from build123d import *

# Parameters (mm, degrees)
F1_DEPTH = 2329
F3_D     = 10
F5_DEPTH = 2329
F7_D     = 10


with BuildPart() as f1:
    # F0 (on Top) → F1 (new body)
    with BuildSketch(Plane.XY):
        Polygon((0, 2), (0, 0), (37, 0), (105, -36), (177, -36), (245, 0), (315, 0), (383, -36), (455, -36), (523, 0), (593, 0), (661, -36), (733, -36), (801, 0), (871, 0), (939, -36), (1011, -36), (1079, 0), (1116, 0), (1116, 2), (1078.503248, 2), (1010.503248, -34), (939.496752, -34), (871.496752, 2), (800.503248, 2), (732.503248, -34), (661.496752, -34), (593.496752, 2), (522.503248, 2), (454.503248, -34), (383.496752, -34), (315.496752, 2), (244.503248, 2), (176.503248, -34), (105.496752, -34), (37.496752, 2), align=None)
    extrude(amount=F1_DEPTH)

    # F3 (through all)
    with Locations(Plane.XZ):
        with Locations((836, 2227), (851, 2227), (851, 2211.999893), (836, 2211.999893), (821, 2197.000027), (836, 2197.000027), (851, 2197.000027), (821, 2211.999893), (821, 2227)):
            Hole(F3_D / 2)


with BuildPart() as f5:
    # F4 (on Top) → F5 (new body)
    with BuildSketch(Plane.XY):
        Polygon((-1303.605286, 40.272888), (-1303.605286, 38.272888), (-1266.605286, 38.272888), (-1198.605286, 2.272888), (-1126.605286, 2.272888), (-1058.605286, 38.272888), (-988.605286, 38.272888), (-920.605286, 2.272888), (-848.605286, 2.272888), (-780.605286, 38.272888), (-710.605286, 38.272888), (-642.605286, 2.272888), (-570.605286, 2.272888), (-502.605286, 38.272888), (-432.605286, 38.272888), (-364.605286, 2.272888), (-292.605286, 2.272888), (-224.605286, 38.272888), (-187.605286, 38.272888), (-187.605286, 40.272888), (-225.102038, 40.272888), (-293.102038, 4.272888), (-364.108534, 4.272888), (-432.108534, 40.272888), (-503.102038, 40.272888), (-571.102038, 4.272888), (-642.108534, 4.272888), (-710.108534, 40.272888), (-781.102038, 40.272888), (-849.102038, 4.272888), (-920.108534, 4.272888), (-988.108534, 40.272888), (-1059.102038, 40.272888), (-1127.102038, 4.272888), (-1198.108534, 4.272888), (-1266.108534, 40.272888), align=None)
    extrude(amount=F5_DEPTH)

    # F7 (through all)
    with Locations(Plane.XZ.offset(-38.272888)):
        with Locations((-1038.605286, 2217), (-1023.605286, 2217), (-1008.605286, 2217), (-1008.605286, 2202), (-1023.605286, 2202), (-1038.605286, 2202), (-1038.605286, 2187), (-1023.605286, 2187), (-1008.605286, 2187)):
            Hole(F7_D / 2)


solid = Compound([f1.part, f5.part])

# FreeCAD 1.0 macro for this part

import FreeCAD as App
import Part
import Sketcher


def add_polygon(sketch, points):
    """Adds a closed chain of lines whose ends are joined by coincident constraints."""
    first, n = sketch.GeometryCount, len(points)
    for a, b in zip(points, points[1:] + points[:1]):
        sketch.addGeometry(Part.LineSegment(App.Vector(*a, 0), App.Vector(*b, 0)), False)
    for i in range(n):
        sketch.addConstraint(Sketcher.Constraint("Coincident", first + i, 2, first + (i + 1) % n, 1))

doc = App.newDocument("Part")
body = doc.addObject("PartDesign::Body", "Body")

sketch1 = body.newObject("Sketcher::SketchObject", "Sketch")
sketch1.AttachmentSupport = (doc.getObject("XY_Plane"), [""])
sketch1.MapMode = "FlatFace"
add_polygon(sketch1, [(0, 2), (0, 0), (37, 0), (105, -36), (177, -36), (245, 0), (315, 0), (383, -36), (455, -36), (523, 0), (593, 0), (661, -36), (733, -36), (801, 0), (871, 0), (939, -36), (1011, -36), (1079, 0), (1116, 0), (1116, 2), (1078.503248, 2), (1010.503248, -34), (939.496752, -34), (871.496752, 2), (800.503248, 2), (732.503248, -34), (661.496752, -34), (593.496752, 2), (522.503248, 2), (454.503248, -34), (383.496752, -34), (315.496752, 2), (244.503248, 2), (176.503248, -34), (105.496752, -34), (37.496752, 2)])
sketch1.addConstraint([
    Sketcher.Constraint("Vertical", 0),
    Sketcher.Constraint("Horizontal", 1),
    Sketcher.Constraint("Horizontal", 3),
    Sketcher.Constraint("Horizontal", 5),
    Sketcher.Constraint("Horizontal", 7),
    Sketcher.Constraint("Horizontal", 9),
    Sketcher.Constraint("Horizontal", 11),
    Sketcher.Constraint("Horizontal", 13),
    Sketcher.Constraint("Horizontal", 15),
    Sketcher.Constraint("Horizontal", 17),
    Sketcher.Constraint("Vertical", 18),
    Sketcher.Constraint("Horizontal", 19),
    Sketcher.Constraint("Horizontal", 21),
    Sketcher.Constraint("Horizontal", 23),
    Sketcher.Constraint("Horizontal", 25),
    Sketcher.Constraint("Horizontal", 27),
    Sketcher.Constraint("Horizontal", 29),
    Sketcher.Constraint("Horizontal", 31),
    Sketcher.Constraint("Horizontal", 33),
    Sketcher.Constraint("Horizontal", 35),
    Sketcher.Constraint("Coincident", 0, 2, -1, 1),
    Sketcher.Constraint("PointOnObject", 4, 2, -1),
    Sketcher.Constraint("PointOnObject", 8, 2, -1),
    Sketcher.Constraint("PointOnObject", 12, 2, -1),
    Sketcher.Constraint("PointOnObject", 16, 2, -1),
    Sketcher.Constraint("Parallel", 2, 6),
    Sketcher.Constraint("Parallel", 4, 8),
    Sketcher.Constraint("Parallel", 6, 10),
    Sketcher.Constraint("Parallel", 8, 12),
    Sketcher.Constraint("Parallel", 10, 14),
    Sketcher.Constraint("Parallel", 12, 16),
    Sketcher.Constraint("Parallel", 16, 20),
    Sketcher.Constraint("Parallel", 14, 22),
    Sketcher.Constraint("Parallel", 20, 24),
    Sketcher.Constraint("Parallel", 22, 26),
    Sketcher.Constraint("Parallel", 24, 28),
    Sketcher.Constraint("Parallel", 26, 30),
    Sketcher.Constraint("Parallel", 28, 32),
    Sketcher.Constraint("Parallel", 30, 34),
    Sketcher.Constraint("Horizontal", 3, 2, 6, 2),
    Sketcher.Constraint("Horizontal", 7, 2, 10, 2),
    Sketcher.Constraint("Horizontal", 11, 2, 14, 2),
    Sketcher.Constraint("Horizontal", 19, 2, 22, 2),
    Sketcher.Constraint("Horizontal", 21, 2, 24, 2),
    Sketcher.Constraint("Horizontal", 23, 2, 26, 2),
    Sketcher.Constraint("Horizontal", 25, 2, 28, 2),
    Sketcher.Constraint("Horizontal", 27, 2, 30, 2),
    Sketcher.Constraint("Horizontal", 29, 2, 32, 2),
    Sketcher.Constraint("Horizontal", 31, 2, 34, 2),
    Sketcher.Constraint("Equal", 3, 7),
    Sketcher.Constraint("Equal", 5, 9),
    Sketcher.Constraint("Equal", 7, 11),
    Sketcher.Constraint("Equal", 9, 13),
    Sketcher.Constraint("Equal", 11, 15),
    Sketcher.Constraint("Equal", 1, 17),
    Sketcher.Constraint("Equal", 21, 25),
    Sketcher.Constraint("Equal", 23, 27),
    Sketcher.Constraint("Equal", 25, 29),
    Sketcher.Constraint("Equal", 27, 31),
    Sketcher.Constraint("Equal", 29, 33),
    Sketcher.Constraint("Equal", 19, 35),
    Sketcher.Constraint("Equal", 2, 4),
    Sketcher.Constraint("Equal", 16, 20),
    Sketcher.Constraint("DistanceX", 1, 1, 1, 2, 37.0),
    Sketcher.Constraint("DistanceX", 3, 1, 3, 2, 72.0),
    Sketcher.Constraint("DistanceX", 5, 1, 5, 2, 70.0),
    Sketcher.Constraint("DistanceY", 0, 2, 0, 1, 2.0),
    Sketcher.Constraint("DistanceX", -1, 1, 2, 2, 105.0),
    Sketcher.Constraint("DistanceY", 2, 2, -1, 1, 36.0),
    Sketcher.Constraint("DistanceX", 19, 2, 19, 1, 37.496752),
    Sketcher.Constraint("DistanceX", 21, 2, 21, 1, 71.006496),
])
pad1 = body.newObject("PartDesign::Pad", "Pad")
pad1.Profile = sketch1
pad1.Length = 2329

sketch2 = body.newObject("Sketcher::SketchObject", "Sketch001")
sketch2.AttachmentSupport = (doc.getObject("XZ_Plane"), [""])
sketch2.MapMode = "FlatFace"
sketch2.addGeometry([
    Part.Circle(App.Vector(836, 2227, 0), App.Vector(0, 0, 1), 5),
    Part.Circle(App.Vector(851, 2227, 0), App.Vector(0, 0, 1), 5),
    Part.Circle(App.Vector(851, 2211.999893, 0), App.Vector(0, 0, 1), 5),
    Part.Circle(App.Vector(836, 2211.999893, 0), App.Vector(0, 0, 1), 5),
    Part.Circle(App.Vector(821, 2197.000027, 0), App.Vector(0, 0, 1), 5),
    Part.Circle(App.Vector(836, 2197.000027, 0), App.Vector(0, 0, 1), 5),
    Part.Circle(App.Vector(851, 2197.000027, 0), App.Vector(0, 0, 1), 5),
    Part.Circle(App.Vector(821, 2211.999893, 0), App.Vector(0, 0, 1), 5),
    Part.Circle(App.Vector(821, 2227, 0), App.Vector(0, 0, 1), 5),
], False)
sketch2.addConstraint([
    Sketcher.Constraint("Equal", 0, 1),
    Sketcher.Constraint("Equal", 1, 2),
    Sketcher.Constraint("Equal", 2, 3),
    Sketcher.Constraint("Equal", 3, 4),
    Sketcher.Constraint("Equal", 4, 5),
    Sketcher.Constraint("Equal", 5, 6),
    Sketcher.Constraint("Equal", 6, 7),
    Sketcher.Constraint("Equal", 7, 8),
    Sketcher.Constraint("Horizontal", 0, 3, 1, 3),
    Sketcher.Constraint("Horizontal", 2, 3, 3, 3),
    Sketcher.Constraint("Horizontal", 4, 3, 5, 3),
    Sketcher.Constraint("Horizontal", 5, 3, 6, 3),
    Sketcher.Constraint("Horizontal", 3, 3, 7, 3),
    Sketcher.Constraint("Horizontal", 1, 3, 8, 3),
    Sketcher.Constraint("Vertical", 1, 3, 2, 3),
    Sketcher.Constraint("Vertical", 0, 3, 3, 3),
    Sketcher.Constraint("Vertical", 3, 3, 5, 3),
    Sketcher.Constraint("Vertical", 2, 3, 6, 3),
    Sketcher.Constraint("Vertical", 4, 3, 7, 3),
    Sketcher.Constraint("Vertical", 7, 3, 8, 3),
    Sketcher.Constraint("Diameter", 0, 10.0),
    Sketcher.Constraint("DistanceX", -1, 1, 0, 3, 836.0),
    Sketcher.Constraint("DistanceY", -1, 1, 0, 3, 2227.0),
    Sketcher.Constraint("DistanceX", -1, 1, 1, 3, 851.0),
    Sketcher.Constraint("DistanceX", -1, 1, 4, 3, 821.0),
    Sketcher.Constraint("DistanceY", -1, 1, 2, 3, 2211.999893),
    Sketcher.Constraint("DistanceY", -1, 1, 4, 3, 2197.000027),
])
doc.recompute()
hole = body.newObject("PartDesign::Hole", "Hole")
hole.Profile = sketch2
hole.ThreadType = "None"
hole.Diameter = 10
hole.DepthType = "ThroughAll"
body2 = doc.addObject("PartDesign::Body", "Body001")

sketch3 = body2.newObject("Sketcher::SketchObject", "Sketch002")
sketch3.AttachmentSupport = (doc.getObject("XY_Plane001"), [""])
sketch3.MapMode = "FlatFace"
add_polygon(sketch3, [(-1303.605286, 40.272888), (-1303.605286, 38.272888), (-1266.605286, 38.272888), (-1198.605286, 2.272888), (-1126.605286, 2.272888), (-1058.605286, 38.272888), (-988.605286, 38.272888), (-920.605286, 2.272888), (-848.605286, 2.272888), (-780.605286, 38.272888), (-710.605286, 38.272888), (-642.605286, 2.272888), (-570.605286, 2.272888), (-502.605286, 38.272888), (-432.605286, 38.272888), (-364.605286, 2.272888), (-292.605286, 2.272888), (-224.605286, 38.272888), (-187.605286, 38.272888), (-187.605286, 40.272888), (-225.102038, 40.272888), (-293.102038, 4.272888), (-364.108534, 4.272888), (-432.108534, 40.272888), (-503.102038, 40.272888), (-571.102038, 4.272888), (-642.108534, 4.272888), (-710.108534, 40.272888), (-781.102038, 40.272888), (-849.102038, 4.272888), (-920.108534, 4.272888), (-988.108534, 40.272888), (-1059.102038, 40.272888), (-1127.102038, 4.272888), (-1198.108534, 4.272888), (-1266.108534, 40.272888)])
sketch3.addConstraint([
    Sketcher.Constraint("Vertical", 0),
    Sketcher.Constraint("Horizontal", 1),
    Sketcher.Constraint("Horizontal", 3),
    Sketcher.Constraint("Horizontal", 5),
    Sketcher.Constraint("Horizontal", 7),
    Sketcher.Constraint("Horizontal", 9),
    Sketcher.Constraint("Horizontal", 11),
    Sketcher.Constraint("Horizontal", 13),
    Sketcher.Constraint("Horizontal", 15),
    Sketcher.Constraint("Horizontal", 17),
    Sketcher.Constraint("Vertical", 18),
    Sketcher.Constraint("Horizontal", 19),
    Sketcher.Constraint("Horizontal", 21),
    Sketcher.Constraint("Horizontal", 23),
    Sketcher.Constraint("Horizontal", 25),
    Sketcher.Constraint("Horizontal", 27),
    Sketcher.Constraint("Horizontal", 29),
    Sketcher.Constraint("Horizontal", 31),
    Sketcher.Constraint("Horizontal", 33),
    Sketcher.Constraint("Horizontal", 35),
    Sketcher.Constraint("Parallel", 2, 6),
    Sketcher.Constraint("Parallel", 4, 8),
    Sketcher.Constraint("Parallel", 6, 10),
    Sketcher.Constraint("Parallel", 8, 12),
    Sketcher.Constraint("Parallel", 10, 14),
    Sketcher.Constraint("Parallel", 12, 16),
    Sketcher.Constraint("Parallel", 16, 20),
    Sketcher.Constraint("Parallel", 14, 22),
    Sketcher.Constraint("Parallel", 20, 24),
    Sketcher.Constraint("Parallel", 22, 26),
    Sketcher.Constraint("Parallel", 24, 28),
    Sketcher.Constraint("Parallel", 26, 30),
    Sketcher.Constraint("Parallel", 28, 32),
    Sketcher.Constraint("Parallel", 30, 34),
    Sketcher.Constraint("Horizontal", 1, 2, 4, 2),
    Sketcher.Constraint("Horizontal", 3, 2, 6, 2),
    Sketcher.Constraint("Horizontal", 5, 2, 8, 2),
    Sketcher.Constraint("Horizontal", 7, 2, 10, 2),
    Sketcher.Constraint("Horizontal", 9, 2, 12, 2),
    Sketcher.Constraint("Horizontal", 11, 2, 14, 2),
    Sketcher.Constraint("Horizontal", 13, 2, 16, 2),
    Sketcher.Constraint("Horizontal", 19, 2, 22, 2),
    Sketcher.Constraint("Horizontal", 21, 2, 24, 2),
    Sketcher.Constraint("Horizontal", 23, 2, 26, 2),
    Sketcher.Constraint("Horizontal", 25, 2, 28, 2),
    Sketcher.Constraint("Horizontal", 27, 2, 30, 2),
    Sketcher.Constraint("Horizontal", 29, 2, 32, 2),
    Sketcher.Constraint("Horizontal", 31, 2, 34, 2),
    Sketcher.Constraint("Equal", 3, 7),
    Sketcher.Constraint("Equal", 5, 9),
    Sketcher.Constraint("Equal", 7, 11),
    Sketcher.Constraint("Equal", 9, 13),
    Sketcher.Constraint("Equal", 11, 15),
    Sketcher.Constraint("Equal", 1, 17),
    Sketcher.Constraint("Equal", 21, 25),
    Sketcher.Constraint("Equal", 23, 27),
    Sketcher.Constraint("Equal", 25, 29),
    Sketcher.Constraint("Equal", 27, 31),
    Sketcher.Constraint("Equal", 29, 33),
    Sketcher.Constraint("Equal", 19, 35),
    Sketcher.Constraint("Equal", 2, 4),
    Sketcher.Constraint("Equal", 16, 20),
    Sketcher.Constraint("DistanceX", 1, 1, 1, 2, 37.0),
    Sketcher.Constraint("DistanceX", 3, 1, 3, 2, 72.0),
    Sketcher.Constraint("DistanceX", 5, 1, 5, 2, 70.0),
    Sketcher.Constraint("DistanceY", 0, 2, 0, 1, 2.0),
    Sketcher.Constraint("DistanceX", 1, 2, 2, 2, 68.0),
    Sketcher.Constraint("DistanceY", 2, 2, 1, 2, 36.0),
    Sketcher.Constraint("DistanceX", 19, 2, 19, 1, 37.496752),
    Sketcher.Constraint("DistanceX", 21, 2, 21, 1, 71.006496),
    Sketcher.Constraint("DistanceY", -1, 1, 0, 2, 38.272888),
    Sketcher.Constraint("DistanceX", 19, 2, -1, 1, 225.102038),
])
pad2 = body2.newObject("PartDesign::Pad", "Pad001")
pad2.Profile = sketch3
pad2.Length = 2329

sketch4 = body2.newObject("Sketcher::SketchObject", "Sketch003")
sketch4.AttachmentSupport = (doc.getObject("XZ_Plane001"), [""])
sketch4.MapMode = "FlatFace"
sketch4.AttachmentOffset = App.Placement(App.Vector(0, 0, -38.272888), App.Rotation())
sketch4.addGeometry([
    Part.Circle(App.Vector(-1038.605286, 2217, 0), App.Vector(0, 0, 1), 5),
    Part.Circle(App.Vector(-1023.605286, 2217, 0), App.Vector(0, 0, 1), 5),
    Part.Circle(App.Vector(-1008.605286, 2217, 0), App.Vector(0, 0, 1), 5),
    Part.Circle(App.Vector(-1008.605286, 2202, 0), App.Vector(0, 0, 1), 5),
    Part.Circle(App.Vector(-1023.605286, 2202, 0), App.Vector(0, 0, 1), 5),
    Part.Circle(App.Vector(-1038.605286, 2202, 0), App.Vector(0, 0, 1), 5),
    Part.Circle(App.Vector(-1038.605286, 2187, 0), App.Vector(0, 0, 1), 5),
    Part.Circle(App.Vector(-1023.605286, 2187, 0), App.Vector(0, 0, 1), 5),
    Part.Circle(App.Vector(-1008.605286, 2187, 0), App.Vector(0, 0, 1), 5),
], False)
sketch4.addConstraint([
    Sketcher.Constraint("Equal", 0, 1),
    Sketcher.Constraint("Equal", 1, 2),
    Sketcher.Constraint("Equal", 2, 3),
    Sketcher.Constraint("Equal", 3, 4),
    Sketcher.Constraint("Equal", 4, 5),
    Sketcher.Constraint("Equal", 5, 6),
    Sketcher.Constraint("Equal", 6, 7),
    Sketcher.Constraint("Equal", 7, 8),
    Sketcher.Constraint("Horizontal", 0, 3, 1, 3),
    Sketcher.Constraint("Horizontal", 1, 3, 2, 3),
    Sketcher.Constraint("Horizontal", 3, 3, 4, 3),
    Sketcher.Constraint("Horizontal", 4, 3, 5, 3),
    Sketcher.Constraint("Horizontal", 6, 3, 7, 3),
    Sketcher.Constraint("Horizontal", 7, 3, 8, 3),
    Sketcher.Constraint("Vertical", 2, 3, 3, 3),
    Sketcher.Constraint("Vertical", 1, 3, 4, 3),
    Sketcher.Constraint("Vertical", 0, 3, 5, 3),
    Sketcher.Constraint("Vertical", 5, 3, 6, 3),
    Sketcher.Constraint("Vertical", 4, 3, 7, 3),
    Sketcher.Constraint("Vertical", 3, 3, 8, 3),
    Sketcher.Constraint("Diameter", 0, 10.0),
    Sketcher.Constraint("DistanceY", -1, 1, 0, 3, 2217.0),
    Sketcher.Constraint("DistanceY", -1, 1, 3, 3, 2202.0),
    Sketcher.Constraint("DistanceY", -1, 1, 6, 3, 2187.0),
    Sketcher.Constraint("DistanceX", 0, 3, 1, 3, 15.0),
    Sketcher.Constraint("DistanceX", 1, 3, 2, 3, 15.0),
    Sketcher.Constraint("DistanceX", 0, 3, -1, 1, 1038.605286),
])
doc.recompute()
hole2 = body2.newObject("PartDesign::Hole", "Hole001")
hole2.Profile = sketch4
hole2.ThreadType = "None"
hole2.Diameter = 10
hole2.DepthType = "ThroughAll"

doc.recompute()
